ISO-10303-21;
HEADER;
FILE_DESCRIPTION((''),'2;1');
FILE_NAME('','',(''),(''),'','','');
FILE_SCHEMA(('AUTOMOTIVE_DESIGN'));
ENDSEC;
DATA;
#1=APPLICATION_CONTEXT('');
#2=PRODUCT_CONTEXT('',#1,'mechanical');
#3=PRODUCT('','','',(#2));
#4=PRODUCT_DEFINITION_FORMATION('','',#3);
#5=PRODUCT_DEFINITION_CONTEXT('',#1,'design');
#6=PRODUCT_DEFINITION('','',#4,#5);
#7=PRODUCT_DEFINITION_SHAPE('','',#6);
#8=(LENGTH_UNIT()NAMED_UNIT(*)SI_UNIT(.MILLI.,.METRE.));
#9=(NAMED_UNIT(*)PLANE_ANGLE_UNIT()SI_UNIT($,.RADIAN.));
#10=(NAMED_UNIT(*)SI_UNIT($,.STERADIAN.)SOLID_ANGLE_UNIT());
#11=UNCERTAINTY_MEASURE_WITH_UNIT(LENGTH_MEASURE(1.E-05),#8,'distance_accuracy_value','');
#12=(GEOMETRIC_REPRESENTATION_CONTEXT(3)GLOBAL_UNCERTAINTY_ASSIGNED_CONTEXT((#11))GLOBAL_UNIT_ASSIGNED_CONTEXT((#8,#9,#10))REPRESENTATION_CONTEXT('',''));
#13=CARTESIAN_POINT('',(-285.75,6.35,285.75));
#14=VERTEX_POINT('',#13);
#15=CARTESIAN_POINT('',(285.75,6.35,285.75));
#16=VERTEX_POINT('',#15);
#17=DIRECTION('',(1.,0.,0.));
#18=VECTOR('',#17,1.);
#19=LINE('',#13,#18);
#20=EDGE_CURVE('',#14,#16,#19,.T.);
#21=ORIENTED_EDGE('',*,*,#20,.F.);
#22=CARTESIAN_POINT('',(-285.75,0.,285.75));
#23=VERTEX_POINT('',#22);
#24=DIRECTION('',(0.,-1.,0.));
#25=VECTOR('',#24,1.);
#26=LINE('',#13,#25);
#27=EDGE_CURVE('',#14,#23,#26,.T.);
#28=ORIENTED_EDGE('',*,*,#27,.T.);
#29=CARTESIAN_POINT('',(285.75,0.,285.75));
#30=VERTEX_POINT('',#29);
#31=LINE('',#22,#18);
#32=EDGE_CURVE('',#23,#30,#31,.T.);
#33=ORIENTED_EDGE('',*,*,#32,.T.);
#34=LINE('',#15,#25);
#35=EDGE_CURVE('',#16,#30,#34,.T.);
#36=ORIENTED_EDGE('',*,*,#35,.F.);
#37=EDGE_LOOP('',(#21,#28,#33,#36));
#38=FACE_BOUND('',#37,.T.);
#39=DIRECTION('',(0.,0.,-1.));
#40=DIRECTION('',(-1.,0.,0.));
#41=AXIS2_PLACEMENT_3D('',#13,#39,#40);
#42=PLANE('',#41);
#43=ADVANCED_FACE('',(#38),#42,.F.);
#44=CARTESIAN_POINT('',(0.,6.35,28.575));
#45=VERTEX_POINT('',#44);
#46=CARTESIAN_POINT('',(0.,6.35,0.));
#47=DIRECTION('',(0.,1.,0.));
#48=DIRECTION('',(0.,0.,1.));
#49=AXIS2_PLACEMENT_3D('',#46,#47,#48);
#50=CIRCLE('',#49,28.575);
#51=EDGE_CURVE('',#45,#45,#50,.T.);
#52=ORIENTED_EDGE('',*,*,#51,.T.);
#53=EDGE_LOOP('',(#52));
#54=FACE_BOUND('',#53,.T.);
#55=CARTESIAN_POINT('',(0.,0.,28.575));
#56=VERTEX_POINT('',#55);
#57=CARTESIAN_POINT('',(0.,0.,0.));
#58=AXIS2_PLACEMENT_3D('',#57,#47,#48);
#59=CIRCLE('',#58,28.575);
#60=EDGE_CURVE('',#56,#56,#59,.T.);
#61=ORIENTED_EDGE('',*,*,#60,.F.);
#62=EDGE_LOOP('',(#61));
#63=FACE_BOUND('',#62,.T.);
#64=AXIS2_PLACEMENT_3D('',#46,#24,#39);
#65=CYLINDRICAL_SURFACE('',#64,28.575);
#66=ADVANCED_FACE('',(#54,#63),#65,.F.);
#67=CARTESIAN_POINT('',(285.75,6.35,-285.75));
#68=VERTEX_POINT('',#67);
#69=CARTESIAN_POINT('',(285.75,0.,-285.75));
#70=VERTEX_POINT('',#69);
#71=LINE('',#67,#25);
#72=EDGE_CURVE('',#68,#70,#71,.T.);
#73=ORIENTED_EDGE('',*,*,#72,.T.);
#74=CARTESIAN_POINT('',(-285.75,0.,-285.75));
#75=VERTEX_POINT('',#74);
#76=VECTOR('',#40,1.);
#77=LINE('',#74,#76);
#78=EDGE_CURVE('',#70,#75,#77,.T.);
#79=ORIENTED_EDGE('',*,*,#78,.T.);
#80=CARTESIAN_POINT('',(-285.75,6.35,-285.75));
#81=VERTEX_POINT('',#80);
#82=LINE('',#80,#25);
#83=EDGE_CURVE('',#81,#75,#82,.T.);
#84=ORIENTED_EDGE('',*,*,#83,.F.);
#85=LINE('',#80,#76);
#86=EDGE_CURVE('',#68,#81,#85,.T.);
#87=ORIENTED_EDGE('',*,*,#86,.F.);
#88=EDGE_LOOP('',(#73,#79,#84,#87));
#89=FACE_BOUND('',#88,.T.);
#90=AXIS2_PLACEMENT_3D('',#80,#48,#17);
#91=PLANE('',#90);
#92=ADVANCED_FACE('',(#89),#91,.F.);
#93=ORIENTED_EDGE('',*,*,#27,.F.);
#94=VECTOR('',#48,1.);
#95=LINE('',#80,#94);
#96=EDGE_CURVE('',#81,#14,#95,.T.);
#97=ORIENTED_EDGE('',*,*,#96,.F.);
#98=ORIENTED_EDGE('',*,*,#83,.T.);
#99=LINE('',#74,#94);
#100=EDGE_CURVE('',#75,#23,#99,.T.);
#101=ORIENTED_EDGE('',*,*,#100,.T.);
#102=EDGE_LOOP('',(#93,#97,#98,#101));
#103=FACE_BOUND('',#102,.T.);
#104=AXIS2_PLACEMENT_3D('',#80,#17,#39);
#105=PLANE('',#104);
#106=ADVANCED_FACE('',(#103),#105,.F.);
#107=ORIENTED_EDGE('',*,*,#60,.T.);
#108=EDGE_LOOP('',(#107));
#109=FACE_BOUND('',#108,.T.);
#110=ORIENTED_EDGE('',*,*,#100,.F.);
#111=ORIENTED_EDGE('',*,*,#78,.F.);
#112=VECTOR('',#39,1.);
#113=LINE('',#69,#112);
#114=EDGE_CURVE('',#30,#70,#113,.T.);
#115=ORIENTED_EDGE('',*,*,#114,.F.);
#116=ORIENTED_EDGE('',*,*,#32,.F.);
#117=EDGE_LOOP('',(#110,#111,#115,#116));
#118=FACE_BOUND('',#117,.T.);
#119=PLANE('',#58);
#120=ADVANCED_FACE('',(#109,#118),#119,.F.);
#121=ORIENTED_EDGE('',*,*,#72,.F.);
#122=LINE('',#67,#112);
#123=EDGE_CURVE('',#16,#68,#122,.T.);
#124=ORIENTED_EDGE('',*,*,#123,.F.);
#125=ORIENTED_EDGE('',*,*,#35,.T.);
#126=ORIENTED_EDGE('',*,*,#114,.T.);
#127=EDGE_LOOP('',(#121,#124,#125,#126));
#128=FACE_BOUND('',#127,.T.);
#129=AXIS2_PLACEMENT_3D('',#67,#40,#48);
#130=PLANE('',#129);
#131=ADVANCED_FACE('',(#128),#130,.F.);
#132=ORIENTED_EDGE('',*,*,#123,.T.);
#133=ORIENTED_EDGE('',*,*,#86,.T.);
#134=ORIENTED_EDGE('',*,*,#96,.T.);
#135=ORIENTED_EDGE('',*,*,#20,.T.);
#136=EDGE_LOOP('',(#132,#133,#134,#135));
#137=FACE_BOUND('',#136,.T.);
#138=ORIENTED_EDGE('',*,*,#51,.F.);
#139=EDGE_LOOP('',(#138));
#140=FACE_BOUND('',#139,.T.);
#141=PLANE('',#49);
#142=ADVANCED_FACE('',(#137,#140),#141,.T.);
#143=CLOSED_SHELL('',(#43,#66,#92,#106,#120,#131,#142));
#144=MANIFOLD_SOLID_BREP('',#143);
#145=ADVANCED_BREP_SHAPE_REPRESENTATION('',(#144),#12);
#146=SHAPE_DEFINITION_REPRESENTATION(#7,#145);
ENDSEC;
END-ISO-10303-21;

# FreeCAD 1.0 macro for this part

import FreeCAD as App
import Part
import Sketcher

V = App.Vector
Q = App.Units.Quantity

doc = App.newDocument("Part")
body = doc.addObject("PartDesign::Body", "Body")

# Sketch on XZ plane
sketch1 = doc.addObject("Sketcher::SketchObject", "Sketch")
body.addObject(sketch1)
sketch1.AttachmentSupport = (doc.XZ_Plane, [""])
sketch1.MapMode = "FlatFace"
sketch1.addGeometry(Part.LineSegment(V(-286, -286, 0), V(-286, 286, 0)), False)
sketch1.addGeometry(Part.LineSegment(V(-286, 286, 0), V(286, 286, 0)), False)
sketch1.addGeometry(Part.LineSegment(V(286, 286, 0), V(286, -286, 0)), False)
sketch1.addGeometry(Part.LineSegment(V(286, -286, 0), V(-286, -286, 0)), False)
sketch1.addGeometry(Part.Circle(V(0, 0, 0), V(0, 0, 1), 29), False)
sketch1.addConstraint(Sketcher.Constraint("Coincident", 0, 2, 1, 1))
sketch1.addConstraint(Sketcher.Constraint("Coincident", 1, 2, 2, 1))
sketch1.addConstraint(Sketcher.Constraint("Coincident", 2, 2, 3, 1))
sketch1.addConstraint(Sketcher.Constraint("Coincident", 3, 2, 0, 1))
sketch1.addConstraint(Sketcher.Constraint("Vertical", 0))
sketch1.addConstraint(Sketcher.Constraint("Horizontal", 1))
sketch1.addConstraint(Sketcher.Constraint("Vertical", 2))
sketch1.addConstraint(Sketcher.Constraint("Horizontal", 3))
sketch1.addConstraint(Sketcher.Constraint("Coincident", 4, 3, -1, 1))
sketch1.addConstraint(Sketcher.Constraint("Symmetric", 0, 2, 2, 2, -1, 1))
sketch1.addConstraint(Sketcher.Constraint("Equal", 3, 0))
sketch1.addConstraint(Sketcher.Constraint("Diameter", 4, Q("2.25 in")))
sketch1.addConstraint(Sketcher.Constraint("DistanceX", 1, 1, 1, 2, Q("22.5 in")))
pad1 = doc.addObject("PartDesign::Pad", "Pad")
body.addObject(pad1)
pad1.Profile = sketch1
pad1.Length = Q("0.25 in")
pad1.Reversed = True

doc.recompute()
